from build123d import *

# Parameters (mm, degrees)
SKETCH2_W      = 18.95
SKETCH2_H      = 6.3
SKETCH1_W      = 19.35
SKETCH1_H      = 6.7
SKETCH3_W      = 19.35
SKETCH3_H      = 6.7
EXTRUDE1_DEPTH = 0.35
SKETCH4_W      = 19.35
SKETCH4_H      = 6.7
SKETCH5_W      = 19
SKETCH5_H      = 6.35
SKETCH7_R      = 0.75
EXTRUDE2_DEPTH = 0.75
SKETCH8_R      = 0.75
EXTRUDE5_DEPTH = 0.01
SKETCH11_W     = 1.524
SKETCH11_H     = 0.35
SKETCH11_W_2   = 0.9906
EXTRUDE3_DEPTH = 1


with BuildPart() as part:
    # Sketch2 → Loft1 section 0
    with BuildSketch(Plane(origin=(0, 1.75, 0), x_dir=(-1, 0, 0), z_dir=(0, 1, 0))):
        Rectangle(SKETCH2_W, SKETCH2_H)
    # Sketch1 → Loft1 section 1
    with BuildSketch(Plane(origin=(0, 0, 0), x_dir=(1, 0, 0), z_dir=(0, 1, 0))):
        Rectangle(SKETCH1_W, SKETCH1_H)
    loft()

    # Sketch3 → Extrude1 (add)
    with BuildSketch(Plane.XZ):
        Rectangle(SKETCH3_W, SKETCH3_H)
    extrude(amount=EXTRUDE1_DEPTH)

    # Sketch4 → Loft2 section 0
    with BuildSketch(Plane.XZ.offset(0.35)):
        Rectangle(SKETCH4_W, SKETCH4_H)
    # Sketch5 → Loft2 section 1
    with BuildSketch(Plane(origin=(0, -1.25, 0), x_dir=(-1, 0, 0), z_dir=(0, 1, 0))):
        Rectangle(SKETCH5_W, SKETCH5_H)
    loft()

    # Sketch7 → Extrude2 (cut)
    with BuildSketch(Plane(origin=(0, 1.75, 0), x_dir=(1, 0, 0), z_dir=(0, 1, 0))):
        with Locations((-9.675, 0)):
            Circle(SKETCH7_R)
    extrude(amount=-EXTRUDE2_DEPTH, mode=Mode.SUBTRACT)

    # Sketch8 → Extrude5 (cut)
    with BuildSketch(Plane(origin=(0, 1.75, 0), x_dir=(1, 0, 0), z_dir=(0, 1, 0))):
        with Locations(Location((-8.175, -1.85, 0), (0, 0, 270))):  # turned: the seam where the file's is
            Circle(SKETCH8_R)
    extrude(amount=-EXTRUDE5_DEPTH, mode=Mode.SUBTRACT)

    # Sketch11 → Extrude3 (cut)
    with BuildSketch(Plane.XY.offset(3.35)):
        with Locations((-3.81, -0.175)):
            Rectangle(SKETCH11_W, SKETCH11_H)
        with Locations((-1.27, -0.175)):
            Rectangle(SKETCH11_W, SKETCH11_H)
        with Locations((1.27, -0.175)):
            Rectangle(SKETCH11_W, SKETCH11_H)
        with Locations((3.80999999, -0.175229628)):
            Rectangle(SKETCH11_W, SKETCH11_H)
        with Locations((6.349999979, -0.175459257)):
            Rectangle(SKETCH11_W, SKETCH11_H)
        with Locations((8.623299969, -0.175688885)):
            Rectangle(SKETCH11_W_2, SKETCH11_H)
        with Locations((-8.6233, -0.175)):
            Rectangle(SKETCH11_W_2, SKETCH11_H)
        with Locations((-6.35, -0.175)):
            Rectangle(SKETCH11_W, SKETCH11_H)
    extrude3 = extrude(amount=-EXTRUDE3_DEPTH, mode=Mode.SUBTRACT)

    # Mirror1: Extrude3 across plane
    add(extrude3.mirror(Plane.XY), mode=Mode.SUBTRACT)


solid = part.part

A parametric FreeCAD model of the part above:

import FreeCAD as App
import Part
import Sketcher
from FreeCAD import Vector


def add_polygon(sketch, points):
    """Adds a closed chain of lines whose ends are joined by coincident constraints."""
    first, n = sketch.GeometryCount, len(points)
    for a, b in zip(points, points[1:] + points[:1]):
        sketch.addGeometry(Part.LineSegment(App.Vector(*a, 0), App.Vector(*b, 0)), False)
    for i in range(n):
        sketch.addConstraint(Sketcher.Constraint("Coincident", first + i, 2, first + (i + 1) % n, 1))

doc = App.newDocument("Part")
body = doc.addObject("PartDesign::Body", "Body")

# Sketch on XZ plane
sketch1 = body.newObject("Sketcher::SketchObject", "Sketch")
sketch1.AttachmentSupport = (doc.getObject("XZ_Plane"), [""])
sketch1.MapMode = "FlatFace"
sketch1.AttachmentOffset = App.Placement(Vector(0, 0, -1.75), App.Rotation())
add_polygon(sketch1, [(9, 3), (9, -3), (-9, -3), (-9, 3)])  # lines 0-3
sketch1.addConstraint(Sketcher.Constraint("Vertical", 0))
sketch1.addConstraint(Sketcher.Constraint("Horizontal", 1))
sketch1.addConstraint(Sketcher.Constraint("Vertical", 2))
sketch1.addConstraint(Sketcher.Constraint("Horizontal", 3))
sketch1.addConstraint(Sketcher.Constraint("Symmetric", 0, 2, 2, 2, -1, 1))
sketch1.addConstraint(Sketcher.Constraint("DistanceY", 0, 2, 0, 1, 6.3))
sketch1.addConstraint(Sketcher.Constraint("DistanceX", 1, 2, 1, 1, 18.95))

# Sketch on XZ plane
sketch2 = body.newObject("Sketcher::SketchObject", "Sketch001")
sketch2.AttachmentSupport = (doc.getObject("XZ_Plane"), [""])
sketch2.MapMode = "FlatFace"
add_polygon(sketch2, [(-10, -3), (-10, 3), (10, 3), (10, -3)])  # lines 0-3
sketch2.addConstraint(Sketcher.Constraint("Vertical", 0))
sketch2.addConstraint(Sketcher.Constraint("Horizontal", 1))
sketch2.addConstraint(Sketcher.Constraint("Vertical", 2))
sketch2.addConstraint(Sketcher.Constraint("Horizontal", 3))
sketch2.addConstraint(Sketcher.Constraint("Symmetric", 0, 2, 2, 2, -1, 1))
sketch2.addConstraint(Sketcher.Constraint("DistanceY", 0, 1, 0, 2, 6.7))
sketch2.addConstraint(Sketcher.Constraint("DistanceX", 1, 1, 1, 2, 19.35))

additiveloft = body.newObject("PartDesign::AdditiveLoft", "AdditiveLoft")
additiveloft.Profile = sketch1
additiveloft.Sections = [sketch2]

# Sketch on XZ plane
sketch3 = body.newObject("Sketcher::SketchObject", "Sketch002")
sketch3.AttachmentSupport = (doc.getObject("XZ_Plane"), [""])
sketch3.MapMode = "FlatFace"
add_polygon(sketch3, [(-10, 3), (-10, -3), (10, -3), (10, 3)])  # lines 0-3
sketch3.addConstraint(Sketcher.Constraint("Vertical", 0))
sketch3.addConstraint(Sketcher.Constraint("Horizontal", 1))
sketch3.addConstraint(Sketcher.Constraint("Vertical", 2))
sketch3.addConstraint(Sketcher.Constraint("Horizontal", 3))
sketch3.addConstraint(Sketcher.Constraint("Symmetric", 0, 2, 2, 2, -1, 1))
sketch3.addConstraint(Sketcher.Constraint("DistanceY", 0, 2, 0, 1, 6.7))
sketch3.addConstraint(Sketcher.Constraint("DistanceX", 1, 1, 1, 2, 19.35))
pad1 = body.newObject("PartDesign::Pad", "Pad")
pad1.Profile = sketch3
pad1.Length = 0.35

# Sketch on XZ plane
sketch4 = body.newObject("Sketcher::SketchObject", "Sketch003")
sketch4.AttachmentSupport = (doc.getObject("XZ_Plane"), [""])
sketch4.MapMode = "FlatFace"
sketch4.AttachmentOffset = App.Placement(Vector(0, 0, 0.35), App.Rotation())
add_polygon(sketch4, [(-10, 3), (-10, -3), (10, -3), (10, 3)])  # lines 0-3
sketch4.addConstraint(Sketcher.Constraint("Vertical", 0))
sketch4.addConstraint(Sketcher.Constraint("Horizontal", 1))
sketch4.addConstraint(Sketcher.Constraint("Vertical", 2))
sketch4.addConstraint(Sketcher.Constraint("Horizontal", 3))
sketch4.addConstraint(Sketcher.Constraint("Symmetric", 0, 2, 2, 2, -1, 1))
sketch4.addConstraint(Sketcher.Constraint("DistanceY", 0, 2, 0, 1, 6.7))
sketch4.addConstraint(Sketcher.Constraint("DistanceX", 1, 1, 1, 2, 19.35))

# Sketch on XZ plane
sketch5 = body.newObject("Sketcher::SketchObject", "Sketch004")
sketch5.AttachmentSupport = (doc.getObject("XZ_Plane"), [""])
sketch5.MapMode = "FlatFace"
sketch5.AttachmentOffset = App.Placement(Vector(0, 0, 1.25), App.Rotation())
add_polygon(sketch5, [(10, 3), (10, -3), (-10, -3), (-10, 3)])  # lines 0-3
sketch5.addConstraint(Sketcher.Constraint("Vertical", 0))
sketch5.addConstraint(Sketcher.Constraint("Horizontal", 1))
sketch5.addConstraint(Sketcher.Constraint("Vertical", 2))
sketch5.addConstraint(Sketcher.Constraint("Horizontal", 3))
sketch5.addConstraint(Sketcher.Constraint("Symmetric", 0, 2, 2, 2, -1, 1))
sketch5.addConstraint(Sketcher.Constraint("DistanceX", 1, 2, 1, 1, 19.0))
sketch5.addConstraint(Sketcher.Constraint("DistanceY", 0, 2, 0, 1, 6.35))

additiveloft2 = body.newObject("PartDesign::AdditiveLoft", "AdditiveLoft001")
additiveloft2.Profile = sketch4
additiveloft2.Sections = [sketch5]

# Sketch on XZ plane
sketch6 = body.newObject("Sketcher::SketchObject", "Sketch005")
sketch6.AttachmentSupport = (doc.getObject("XZ_Plane"), [""])
sketch6.MapMode = "FlatFace"
sketch6.AttachmentOffset = App.Placement(Vector(0, 0, -1.75), App.Rotation())
sketch6.addGeometry(Part.Circle(Vector(-9.7, 0, 0), Vector(0, 0, 1), 0.8), False)
sketch6.addConstraint(Sketcher.Constraint("PointOnObject", 0, 3, -1))
sketch6.addConstraint(Sketcher.Constraint("Diameter", 0, 1.5))
sketch6.addConstraint(Sketcher.Constraint("DistanceX", 0, 3, -1, 1, 9.675))
pocket1 = body.newObject("PartDesign::Pocket", "Pocket")
pocket1.Profile = sketch6
pocket1.Length = 0.75
pocket1.Reversed = True

# Sketch on XZ plane
sketch7 = body.newObject("Sketcher::SketchObject", "Sketch006")
sketch7.AttachmentSupport = (doc.getObject("XZ_Plane"), [""])
sketch7.MapMode = "FlatFace"
sketch7.AttachmentOffset = App.Placement(Vector(0, 0, -1.75), App.Rotation())
sketch7.addGeometry(Part.Circle(Vector(-8.2, 1.9, 0), Vector(0, 0, 1), 0.8), False)
sketch7.addConstraint(Sketcher.Constraint("Diameter", 0, 1.5))
sketch7.addConstraint(Sketcher.Constraint("DistanceY", -1, 1, 0, 3, 1.85))
sketch7.addConstraint(Sketcher.Constraint("DistanceX", 0, 3, -1, 1, 8.175))
pocket2 = body.newObject("PartDesign::Pocket", "Pocket001")
pocket2.Profile = sketch7
pocket2.Length = 0.01
pocket2.Reversed = True

# Sketch on XY plane
sketch8 = body.newObject("Sketcher::SketchObject", "Sketch007")
sketch8.AttachmentSupport = (doc.getObject("XY_Plane"), [""])
sketch8.MapMode = "FlatFace"
sketch8.AttachmentOffset = App.Placement(Vector(0, 0, 3.35), App.Rotation())
add_polygon(sketch8, [(-4.57, 0), (-4.57, -0.35), (-3.05, -0.35), (-3.05, 0)])  # lines 0-3
add_polygon(sketch8, [(-2.03, 0), (-2.03, -0.35), (-0.51, -0.35), (-0.51, 0)])  # lines 4-7
add_polygon(sketch8, [(0.51, 0), (0.51, -0.35), (2.03, -0.35), (2.03, 0)])  # lines 8-11
add_polygon(sketch8, [(3.05, 0), (3.05, -0.35), (4.57, -0.35), (4.57, 0)])  # lines 12-15
add_polygon(sketch8, [(5.59, 0), (5.59, -0.35), (7.11, -0.35), (7.11, 0)])  # lines 16-19
add_polygon(sketch8, [(8.13, 0), (8.13, -0.35), (9.12, -0.35), (9.12, 0)])  # lines 20-23
add_polygon(sketch8, [(-9.12, 0), (-9.12, -0.35), (-8.13, -0.35), (-8.13, 0)])  # lines 24-27
add_polygon(sketch8, [(-7.11, 0), (-7.11, -0.35), (-5.59, -0.35), (-5.59, 0)])  # lines 28-31
sketch8.addConstraint(Sketcher.Constraint("Vertical", 0))
sketch8.addConstraint(Sketcher.Constraint("Horizontal", 1))
sketch8.addConstraint(Sketcher.Constraint("Vertical", 2))
sketch8.addConstraint(Sketcher.Constraint("Horizontal", 3))
sketch8.addConstraint(Sketcher.Constraint("Vertical", 4))
sketch8.addConstraint(Sketcher.Constraint("Horizontal", 5))
sketch8.addConstraint(Sketcher.Constraint("Vertical", 6))
sketch8.addConstraint(Sketcher.Constraint("Horizontal", 7))
sketch8.addConstraint(Sketcher.Constraint("Vertical", 8))
sketch8.addConstraint(Sketcher.Constraint("Horizontal", 9))
sketch8.addConstraint(Sketcher.Constraint("Vertical", 10))
sketch8.addConstraint(Sketcher.Constraint("Horizontal", 11))
sketch8.addConstraint(Sketcher.Constraint("Vertical", 12))
sketch8.addConstraint(Sketcher.Constraint("Horizontal", 13))
sketch8.addConstraint(Sketcher.Constraint("Vertical", 14))
sketch8.addConstraint(Sketcher.Constraint("Horizontal", 15))
sketch8.addConstraint(Sketcher.Constraint("Vertical", 16))
sketch8.addConstraint(Sketcher.Constraint("Horizontal", 17))
sketch8.addConstraint(Sketcher.Constraint("Vertical", 18))
sketch8.addConstraint(Sketcher.Constraint("Horizontal", 19))
sketch8.addConstraint(Sketcher.Constraint("Vertical", 20))
sketch8.addConstraint(Sketcher.Constraint("Horizontal", 21))
sketch8.addConstraint(Sketcher.Constraint("Vertical", 22))
sketch8.addConstraint(Sketcher.Constraint("Horizontal", 23))
sketch8.addConstraint(Sketcher.Constraint("Vertical", 24))
sketch8.addConstraint(Sketcher.Constraint("Horizontal", 25))
sketch8.addConstraint(Sketcher.Constraint("Vertical", 26))
sketch8.addConstraint(Sketcher.Constraint("Horizontal", 27))
sketch8.addConstraint(Sketcher.Constraint("Vertical", 28))
sketch8.addConstraint(Sketcher.Constraint("Horizontal", 29))
sketch8.addConstraint(Sketcher.Constraint("Vertical", 30))
sketch8.addConstraint(Sketcher.Constraint("Horizontal", 31))
sketch8.addConstraint(Sketcher.Constraint("Symmetric", 7, 2, 10, 2, -1, 1))
sketch8.addConstraint(Sketcher.Constraint("Symmetric", 5, 2, 8, 2, -2))
sketch8.addConstraint(Sketcher.Constraint("PointOnObject", 2, 2, -1))
sketch8.addConstraint(Sketcher.Constraint("PointOnObject", 6, 2, -1))
sketch8.addConstraint(Sketcher.Constraint("PointOnObject", 26, 2, -1))
sketch8.addConstraint(Sketcher.Constraint("PointOnObject", 30, 2, -1))
sketch8.addConstraint(Sketcher.Constraint("Horizontal", 1, 2, 4, 2))
sketch8.addConstraint(Sketcher.Constraint("Horizontal", 9, 2, 24, 2))
sketch8.addConstraint(Sketcher.Constraint("Horizontal", 25, 2, 28, 2))
sketch8.addConstraint(Sketcher.Constraint("Equal", 3, 5))
sketch8.addConstraint(Sketcher.Constraint("Equal", 11, 13))
sketch8.addConstraint(Sketcher.Constraint("Equal", 15, 17))
sketch8.addConstraint(Sketcher.Constraint("Equal", 23, 25))
sketch8.addConstraint(Sketcher.Constraint("Equal", 19, 29))
sketch8.addConstraint(Sketcher.Constraint("Equal", 10, 12))
sketch8.addConstraint(Sketcher.Constraint("Equal", 14, 16))
sketch8.addConstraint(Sketcher.Constraint("Equal", 18, 20))
sketch8.addConstraint(Sketcher.Constraint("DistanceY", 0, 2, 0, 1, 0.35))
sketch8.addConstraint(Sketcher.Constraint("DistanceX", 1, 1, 1, 2, 1.524))
sketch8.addConstraint(Sketcher.Constraint("DistanceX", 0, 2, 4, 2, 2.54))
sketch8.addConstraint(Sketcher.Constraint("DistanceX", 4, 2, 8, 2, 2.54))
sketch8.addConstraint(Sketcher.Constraint("DistanceX", 8, 2, 12, 2, 2.54))
sketch8.addConstraint(Sketcher.Constraint("DistanceX", 12, 2, 16, 2, 2.54))
sketch8.addConstraint(Sketcher.Constraint("DistanceX", 16, 2, 20, 2, 2.54))
sketch8.addConstraint(Sketcher.Constraint("DistanceX", 25, 2, 1, 2, 5.08))
sketch8.addConstraint(Sketcher.Constraint("DistanceX", 28, 2, 0, 2, 2.54))
sketch8.addConstraint(Sketcher.Constraint("DistanceX", 21, 1, 21, 2, 0.9906))
sketch8.addConstraint(Sketcher.Constraint("DistanceY", 12, 2, -1, 1, 0.35023))
sketch8.addConstraint(Sketcher.Constraint("DistanceY", 16, 2, -1, 1, 0.350459))
sketch8.addConstraint(Sketcher.Constraint("DistanceY", 20, 2, -1, 1, 0.350689))
pocket3 = body.newObject("PartDesign::Pocket", "Pocket002")
pocket3.Profile = sketch8
pocket3.Length = 1
doc.recompute()

mirrored = body.newObject("PartDesign::Mirrored", "Mirrored")
mirrored.Originals = [pocket3]
mirrored.MirrorPlane = (doc.getObject("XY_Plane"), [""])
body.Tip = mirrored

doc.recompute()
